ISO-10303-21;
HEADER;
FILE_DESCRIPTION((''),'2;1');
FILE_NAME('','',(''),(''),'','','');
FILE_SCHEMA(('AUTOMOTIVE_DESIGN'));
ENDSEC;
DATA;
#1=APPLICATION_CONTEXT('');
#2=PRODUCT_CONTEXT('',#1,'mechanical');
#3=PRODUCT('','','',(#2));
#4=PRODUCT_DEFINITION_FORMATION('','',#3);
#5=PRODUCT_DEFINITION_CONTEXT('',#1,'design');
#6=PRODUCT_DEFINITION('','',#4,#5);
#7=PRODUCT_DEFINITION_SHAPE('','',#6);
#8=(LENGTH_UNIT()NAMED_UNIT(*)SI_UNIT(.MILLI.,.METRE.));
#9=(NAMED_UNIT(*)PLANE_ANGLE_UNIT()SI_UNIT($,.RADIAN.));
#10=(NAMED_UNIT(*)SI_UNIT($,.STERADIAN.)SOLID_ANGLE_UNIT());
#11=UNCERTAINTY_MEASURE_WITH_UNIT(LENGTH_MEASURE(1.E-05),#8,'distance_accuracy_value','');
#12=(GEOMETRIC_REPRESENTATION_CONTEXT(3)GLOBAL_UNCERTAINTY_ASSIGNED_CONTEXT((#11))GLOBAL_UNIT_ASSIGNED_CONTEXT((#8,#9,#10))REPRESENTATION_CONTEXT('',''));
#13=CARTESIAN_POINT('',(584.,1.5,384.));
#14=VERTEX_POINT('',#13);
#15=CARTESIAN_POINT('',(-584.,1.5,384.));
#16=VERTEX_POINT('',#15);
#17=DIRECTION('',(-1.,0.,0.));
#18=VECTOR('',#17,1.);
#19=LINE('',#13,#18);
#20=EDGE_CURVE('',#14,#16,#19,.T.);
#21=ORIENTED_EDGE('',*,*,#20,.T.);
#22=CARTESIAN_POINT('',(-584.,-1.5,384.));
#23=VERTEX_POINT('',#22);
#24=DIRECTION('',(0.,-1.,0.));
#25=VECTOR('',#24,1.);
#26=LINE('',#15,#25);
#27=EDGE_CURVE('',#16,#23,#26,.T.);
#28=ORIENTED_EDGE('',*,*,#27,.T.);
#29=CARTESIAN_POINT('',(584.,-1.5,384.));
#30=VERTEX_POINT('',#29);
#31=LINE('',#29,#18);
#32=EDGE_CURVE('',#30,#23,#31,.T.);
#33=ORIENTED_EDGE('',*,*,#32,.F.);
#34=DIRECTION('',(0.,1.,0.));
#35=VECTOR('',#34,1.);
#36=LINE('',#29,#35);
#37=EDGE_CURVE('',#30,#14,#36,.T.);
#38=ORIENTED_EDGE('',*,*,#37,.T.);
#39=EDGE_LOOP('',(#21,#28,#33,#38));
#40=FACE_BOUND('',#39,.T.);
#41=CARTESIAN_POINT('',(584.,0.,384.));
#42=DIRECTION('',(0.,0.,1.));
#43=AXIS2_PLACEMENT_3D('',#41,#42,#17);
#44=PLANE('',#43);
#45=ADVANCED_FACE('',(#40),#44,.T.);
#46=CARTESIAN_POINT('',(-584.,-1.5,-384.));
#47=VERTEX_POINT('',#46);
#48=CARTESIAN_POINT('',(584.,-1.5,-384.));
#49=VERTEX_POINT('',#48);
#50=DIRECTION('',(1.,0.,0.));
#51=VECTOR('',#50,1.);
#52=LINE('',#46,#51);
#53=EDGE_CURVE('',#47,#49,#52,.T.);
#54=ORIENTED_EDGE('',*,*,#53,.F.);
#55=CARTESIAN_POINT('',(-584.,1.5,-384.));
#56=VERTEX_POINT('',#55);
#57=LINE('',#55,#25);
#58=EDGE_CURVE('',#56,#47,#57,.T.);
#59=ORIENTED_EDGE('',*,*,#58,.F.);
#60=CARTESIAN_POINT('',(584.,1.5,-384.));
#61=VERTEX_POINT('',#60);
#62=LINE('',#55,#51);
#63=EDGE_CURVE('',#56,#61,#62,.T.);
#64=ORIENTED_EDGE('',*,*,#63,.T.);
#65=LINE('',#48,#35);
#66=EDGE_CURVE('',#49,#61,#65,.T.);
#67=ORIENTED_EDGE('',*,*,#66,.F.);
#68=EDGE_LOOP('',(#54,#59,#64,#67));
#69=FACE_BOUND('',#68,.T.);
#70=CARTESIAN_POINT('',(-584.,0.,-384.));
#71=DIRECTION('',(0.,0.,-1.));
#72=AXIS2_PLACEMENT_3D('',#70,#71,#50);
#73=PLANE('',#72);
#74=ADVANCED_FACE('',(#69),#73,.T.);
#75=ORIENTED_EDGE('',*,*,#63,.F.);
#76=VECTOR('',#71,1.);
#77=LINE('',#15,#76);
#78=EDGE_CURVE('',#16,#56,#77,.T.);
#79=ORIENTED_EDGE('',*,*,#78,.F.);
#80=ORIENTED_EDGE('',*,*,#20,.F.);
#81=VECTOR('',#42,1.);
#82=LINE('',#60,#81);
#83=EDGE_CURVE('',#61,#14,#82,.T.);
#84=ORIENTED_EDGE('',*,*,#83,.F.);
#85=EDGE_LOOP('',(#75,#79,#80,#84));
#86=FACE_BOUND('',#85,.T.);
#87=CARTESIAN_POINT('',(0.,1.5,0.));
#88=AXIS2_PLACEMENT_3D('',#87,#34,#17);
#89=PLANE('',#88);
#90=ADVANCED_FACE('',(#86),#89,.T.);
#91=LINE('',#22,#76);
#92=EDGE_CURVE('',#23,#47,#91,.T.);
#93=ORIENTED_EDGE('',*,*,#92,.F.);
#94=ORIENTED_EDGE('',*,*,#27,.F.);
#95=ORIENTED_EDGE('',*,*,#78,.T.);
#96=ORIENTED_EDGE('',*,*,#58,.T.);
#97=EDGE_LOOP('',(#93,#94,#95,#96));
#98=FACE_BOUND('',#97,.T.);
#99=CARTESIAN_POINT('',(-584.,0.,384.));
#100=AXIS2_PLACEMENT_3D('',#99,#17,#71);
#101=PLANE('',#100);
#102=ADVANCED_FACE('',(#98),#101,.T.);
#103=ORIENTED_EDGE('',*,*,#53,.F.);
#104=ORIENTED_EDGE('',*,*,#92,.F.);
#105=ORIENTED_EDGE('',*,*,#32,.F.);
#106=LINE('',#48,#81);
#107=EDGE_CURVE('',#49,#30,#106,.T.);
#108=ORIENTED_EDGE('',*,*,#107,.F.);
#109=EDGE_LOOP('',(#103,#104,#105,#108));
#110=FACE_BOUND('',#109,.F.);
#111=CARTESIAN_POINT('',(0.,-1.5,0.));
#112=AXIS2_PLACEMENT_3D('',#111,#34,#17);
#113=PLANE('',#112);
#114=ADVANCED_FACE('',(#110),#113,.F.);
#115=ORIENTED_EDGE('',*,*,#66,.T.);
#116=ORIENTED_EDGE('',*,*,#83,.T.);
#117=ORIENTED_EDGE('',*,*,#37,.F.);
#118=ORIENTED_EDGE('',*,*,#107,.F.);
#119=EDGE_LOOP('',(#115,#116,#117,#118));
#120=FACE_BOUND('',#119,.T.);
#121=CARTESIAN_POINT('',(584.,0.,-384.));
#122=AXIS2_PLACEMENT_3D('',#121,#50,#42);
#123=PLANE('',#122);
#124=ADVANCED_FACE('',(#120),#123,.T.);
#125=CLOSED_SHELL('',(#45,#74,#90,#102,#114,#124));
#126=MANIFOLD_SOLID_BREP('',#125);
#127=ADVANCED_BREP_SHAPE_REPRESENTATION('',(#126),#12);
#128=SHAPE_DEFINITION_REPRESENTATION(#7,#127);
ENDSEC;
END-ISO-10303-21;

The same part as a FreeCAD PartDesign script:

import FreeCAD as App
import Part
import Sketcher

V = App.Vector
Q = App.Units.Quantity

doc = App.newDocument("Part")
body = doc.addObject("PartDesign::Body", "Body")

# Sketch on XZ plane
sketch1 = body.newObject("Sketcher::SketchObject", "Sketch")
sketch1.AttachmentSupport = (doc.getObject("XZ_Plane"), [""])
sketch1.MapMode = "FlatFace"
sketch1.addGeometry([
    Part.LineSegment(V(-584, 384, 0), V(584, 384, 0)),
    Part.LineSegment(V(584, 384, 0), V(584, -384, 0)),
    Part.LineSegment(V(584, -384, 0), V(-584, -384, 0)),
    Part.LineSegment(V(-584, -384, 0), V(-584, 384, 0)),
], False)
sketch1.addConstraint([
    Sketcher.Constraint("Coincident", 0, 2, 1, 1),
    Sketcher.Constraint("Coincident", 1, 2, 2, 1),
    Sketcher.Constraint("Coincident", 2, 2, 3, 1),
    Sketcher.Constraint("Coincident", 3, 2, 0, 1),
    Sketcher.Constraint("Horizontal", 0),
    Sketcher.Constraint("Vertical", 1),
    Sketcher.Constraint("Horizontal", 2),
    Sketcher.Constraint("Vertical", 3),
    Sketcher.Constraint("Symmetric", 0, 2, 2, 2, -1, 1),
    Sketcher.Constraint("DistanceX", 0, 1, 0, 2, Q("1168 mm")),
    Sketcher.Constraint("DistanceY", 1, 2, 1, 1, Q("768 mm")),
])
pad1 = body.newObject("PartDesign::Pad", "Pad")
pad1.Profile = sketch1
pad1.Length = 3
pad1.Midplane = True

doc.recompute()
